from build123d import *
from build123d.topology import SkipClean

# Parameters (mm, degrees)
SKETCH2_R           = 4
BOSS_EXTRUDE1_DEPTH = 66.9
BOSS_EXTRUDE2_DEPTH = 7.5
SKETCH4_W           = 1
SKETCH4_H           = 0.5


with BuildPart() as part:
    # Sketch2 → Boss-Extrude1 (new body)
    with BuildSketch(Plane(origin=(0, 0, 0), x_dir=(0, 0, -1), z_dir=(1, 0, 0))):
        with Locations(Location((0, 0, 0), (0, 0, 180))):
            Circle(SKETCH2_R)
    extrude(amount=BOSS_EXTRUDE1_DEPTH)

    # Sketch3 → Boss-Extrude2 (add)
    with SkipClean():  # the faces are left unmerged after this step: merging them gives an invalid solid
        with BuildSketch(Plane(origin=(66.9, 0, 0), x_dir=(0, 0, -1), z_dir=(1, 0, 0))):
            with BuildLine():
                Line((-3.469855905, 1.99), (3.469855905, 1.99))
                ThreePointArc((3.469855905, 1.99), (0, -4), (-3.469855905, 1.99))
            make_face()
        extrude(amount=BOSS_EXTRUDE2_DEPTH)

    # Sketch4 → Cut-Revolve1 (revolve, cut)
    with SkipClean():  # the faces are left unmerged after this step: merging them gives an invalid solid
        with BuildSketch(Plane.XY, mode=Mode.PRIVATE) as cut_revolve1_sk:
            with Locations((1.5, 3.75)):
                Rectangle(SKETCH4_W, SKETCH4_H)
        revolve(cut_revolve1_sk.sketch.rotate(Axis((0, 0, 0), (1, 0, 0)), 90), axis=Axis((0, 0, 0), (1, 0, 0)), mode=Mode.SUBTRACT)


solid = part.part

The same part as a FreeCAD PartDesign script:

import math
import FreeCAD as App
import Part
import Sketcher
from FreeCAD import Vector

doc = App.newDocument("Part")
body = doc.addObject("PartDesign::Body", "Body")

sketch1 = body.newObject("Sketcher::SketchObject", "Sketch")
sketch1.AttachmentSupport = (doc.getObject("YZ_Plane"), [""])
sketch1.MapMode = "FlatFace"
sketch1.addGeometry(Part.Circle(Vector(0, 0, 0), Vector(0, 0, 1), 4), False)
sketch1.addConstraint([
    Sketcher.Constraint("Coincident", 0, 3, -1, 1),
    Sketcher.Constraint("Diameter", 0, 8.0),
])
pad1 = body.newObject("PartDesign::Pad", "Pad")
pad1.Profile = sketch1
pad1.Length = 66.9

sketch2 = body.newObject("Sketcher::SketchObject", "Sketch001")
sketch2.AttachmentSupport = (doc.getObject("YZ_Plane"), [""])
sketch2.MapMode = "FlatFace"
sketch2.AttachmentOffset = App.Placement(Vector(0, 0, 66.9), App.Rotation())
sketch2.addGeometry([
    Part.LineSegment(Vector(2, -3.5, 0), Vector(2, 3.5, 0)),
    Part.ArcOfCircle(Part.Circle(Vector(0, 0, 0), Vector(0, 0, 1), 4), math.radians(60), math.radians(300)),
], False)
sketch2.addConstraint([
    Sketcher.Constraint("Coincident", 0, 1, 1, 2),
    Sketcher.Constraint("Coincident", 1, 1, 0, 2),
    Sketcher.Constraint("Vertical", 0),
    Sketcher.Constraint("Coincident", 1, 3, -1, 1),
    Sketcher.Constraint("Radius", 1, 4.0),
    Sketcher.Constraint("DistanceX", -1, 1, 0, 1, 1.99),
])
pad2 = body.newObject("PartDesign::Pad", "Pad001")
pad2.Profile = sketch2
pad2.Length = 7.5

sketch3 = body.newObject("Sketcher::SketchObject", "Sketch002")
sketch3.AttachmentSupport = (doc.getObject("XY_Plane"), [""])
sketch3.MapMode = "FlatFace"
sketch3.addGeometry([
    Part.LineSegment(Vector(1, 4, 0), Vector(1, 3.5, 0)),
    Part.LineSegment(Vector(1, 3.5, 0), Vector(2, 3.5, 0)),
    Part.LineSegment(Vector(2, 3.5, 0), Vector(2, 4, 0)),
    Part.LineSegment(Vector(2, 4, 0), Vector(1, 4, 0)),
], False)
sketch3.addConstraint([
    Sketcher.Constraint("Coincident", 0, 2, 1, 1),
    Sketcher.Constraint("Coincident", 1, 2, 2, 1),
    Sketcher.Constraint("Coincident", 2, 2, 3, 1),
    Sketcher.Constraint("Coincident", 3, 2, 0, 1),
    Sketcher.Constraint("Vertical", 0),
    Sketcher.Constraint("Horizontal", 1),
    Sketcher.Constraint("Vertical", 2),
    Sketcher.Constraint("Horizontal", 3),
    Sketcher.Constraint("DistanceX", 1, 1, 1, 2, 1.0),
    Sketcher.Constraint("DistanceY", 0, 2, 0, 1, 0.5),
    Sketcher.Constraint("DistanceX", -1, 1, 0, 2, 1.0),
    Sketcher.Constraint("DistanceY", -1, 1, 2, 2, 4.0),
])
groove = body.newObject("PartDesign::Groove", "Groove")
groove.Profile = sketch3
groove.ReferenceAxis = (sketch3, ["H_Axis"])
groove.Angle = 360

doc.recompute()
